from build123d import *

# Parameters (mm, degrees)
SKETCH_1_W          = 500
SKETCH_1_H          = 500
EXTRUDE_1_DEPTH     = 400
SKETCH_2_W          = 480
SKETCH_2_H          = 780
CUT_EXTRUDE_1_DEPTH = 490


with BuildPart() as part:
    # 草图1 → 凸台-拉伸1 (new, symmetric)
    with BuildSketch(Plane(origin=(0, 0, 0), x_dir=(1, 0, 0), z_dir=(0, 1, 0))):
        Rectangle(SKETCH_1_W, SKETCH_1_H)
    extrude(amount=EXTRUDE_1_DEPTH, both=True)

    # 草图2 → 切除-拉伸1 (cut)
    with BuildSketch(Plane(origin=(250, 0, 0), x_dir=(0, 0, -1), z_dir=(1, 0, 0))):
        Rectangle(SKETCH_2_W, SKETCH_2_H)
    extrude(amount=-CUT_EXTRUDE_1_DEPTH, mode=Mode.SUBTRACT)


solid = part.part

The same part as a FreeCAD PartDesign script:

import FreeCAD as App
import Part
import Sketcher

V = App.Vector
Q = App.Units.Quantity


def add_polygon(sketch, points):
    """Adds a closed chain of lines whose ends are joined by coincident constraints."""
    first, n = sketch.GeometryCount, len(points)
    for a, b in zip(points, points[1:] + points[:1]):
        sketch.addGeometry(Part.LineSegment(App.Vector(*a, 0), App.Vector(*b, 0)), False)
    for i in range(n):
        sketch.addConstraint(Sketcher.Constraint("Coincident", first + i, 2, first + (i + 1) % n, 1))

doc = App.newDocument("Part")
body = doc.addObject("PartDesign::Body", "Body")

# Sketch on XZ plane
sketch1 = body.newObject("Sketcher::SketchObject", "Sketch")
sketch1.AttachmentSupport = (doc.getObject("XZ_Plane"), [""])
sketch1.MapMode = "FlatFace"
add_polygon(sketch1, [(-250, -250), (-250, 250), (250, 250), (250, -250)])  # lines 0-3
sketch1.addConstraint(Sketcher.Constraint("Vertical", 0))
sketch1.addConstraint(Sketcher.Constraint("Horizontal", 1))
sketch1.addConstraint(Sketcher.Constraint("Vertical", 2))
sketch1.addConstraint(Sketcher.Constraint("Horizontal", 3))
sketch1.addConstraint(Sketcher.Constraint("Symmetric", 0, 2, 2, 2, -1, 1))
sketch1.addConstraint(Sketcher.Constraint("Equal", 3, 0))
sketch1.addConstraint(Sketcher.Constraint("DistanceX", 1, 1, 1, 2, Q("500 mm")))
pad1 = body.newObject("PartDesign::Pad", "Pad")
pad1.Profile = sketch1
pad1.Length = 800
pad1.Midplane = True

# Sketch on YZ plane
sketch2 = body.newObject("Sketcher::SketchObject", "Sketch001")
sketch2.AttachmentSupport = (doc.getObject("YZ_Plane"), [""])
sketch2.MapMode = "FlatFace"
sketch2.AttachmentOffset = App.Placement(V(0, 0, 250), App.Rotation())
add_polygon(sketch2, [(390, 240), (-390, 240), (-390, -240), (390, -240)])  # lines 0-3
sketch2.addConstraint(Sketcher.Constraint("Horizontal", 0))
sketch2.addConstraint(Sketcher.Constraint("Vertical", 1))
sketch2.addConstraint(Sketcher.Constraint("Horizontal", 2))
sketch2.addConstraint(Sketcher.Constraint("Vertical", 3))
sketch2.addConstraint(Sketcher.Constraint("Symmetric", 0, 2, 2, 2, -1, 1))
sketch2.addConstraint(Sketcher.Constraint("DistanceX", 0, 2, 0, 1, Q("780 mm")))
sketch2.addConstraint(Sketcher.Constraint("DistanceY", 1, 2, 1, 1, Q("480 mm")))
pocket1 = body.newObject("PartDesign::Pocket", "Pocket")
pocket1.Profile = sketch2
pocket1.Length = 490

doc.recompute()
